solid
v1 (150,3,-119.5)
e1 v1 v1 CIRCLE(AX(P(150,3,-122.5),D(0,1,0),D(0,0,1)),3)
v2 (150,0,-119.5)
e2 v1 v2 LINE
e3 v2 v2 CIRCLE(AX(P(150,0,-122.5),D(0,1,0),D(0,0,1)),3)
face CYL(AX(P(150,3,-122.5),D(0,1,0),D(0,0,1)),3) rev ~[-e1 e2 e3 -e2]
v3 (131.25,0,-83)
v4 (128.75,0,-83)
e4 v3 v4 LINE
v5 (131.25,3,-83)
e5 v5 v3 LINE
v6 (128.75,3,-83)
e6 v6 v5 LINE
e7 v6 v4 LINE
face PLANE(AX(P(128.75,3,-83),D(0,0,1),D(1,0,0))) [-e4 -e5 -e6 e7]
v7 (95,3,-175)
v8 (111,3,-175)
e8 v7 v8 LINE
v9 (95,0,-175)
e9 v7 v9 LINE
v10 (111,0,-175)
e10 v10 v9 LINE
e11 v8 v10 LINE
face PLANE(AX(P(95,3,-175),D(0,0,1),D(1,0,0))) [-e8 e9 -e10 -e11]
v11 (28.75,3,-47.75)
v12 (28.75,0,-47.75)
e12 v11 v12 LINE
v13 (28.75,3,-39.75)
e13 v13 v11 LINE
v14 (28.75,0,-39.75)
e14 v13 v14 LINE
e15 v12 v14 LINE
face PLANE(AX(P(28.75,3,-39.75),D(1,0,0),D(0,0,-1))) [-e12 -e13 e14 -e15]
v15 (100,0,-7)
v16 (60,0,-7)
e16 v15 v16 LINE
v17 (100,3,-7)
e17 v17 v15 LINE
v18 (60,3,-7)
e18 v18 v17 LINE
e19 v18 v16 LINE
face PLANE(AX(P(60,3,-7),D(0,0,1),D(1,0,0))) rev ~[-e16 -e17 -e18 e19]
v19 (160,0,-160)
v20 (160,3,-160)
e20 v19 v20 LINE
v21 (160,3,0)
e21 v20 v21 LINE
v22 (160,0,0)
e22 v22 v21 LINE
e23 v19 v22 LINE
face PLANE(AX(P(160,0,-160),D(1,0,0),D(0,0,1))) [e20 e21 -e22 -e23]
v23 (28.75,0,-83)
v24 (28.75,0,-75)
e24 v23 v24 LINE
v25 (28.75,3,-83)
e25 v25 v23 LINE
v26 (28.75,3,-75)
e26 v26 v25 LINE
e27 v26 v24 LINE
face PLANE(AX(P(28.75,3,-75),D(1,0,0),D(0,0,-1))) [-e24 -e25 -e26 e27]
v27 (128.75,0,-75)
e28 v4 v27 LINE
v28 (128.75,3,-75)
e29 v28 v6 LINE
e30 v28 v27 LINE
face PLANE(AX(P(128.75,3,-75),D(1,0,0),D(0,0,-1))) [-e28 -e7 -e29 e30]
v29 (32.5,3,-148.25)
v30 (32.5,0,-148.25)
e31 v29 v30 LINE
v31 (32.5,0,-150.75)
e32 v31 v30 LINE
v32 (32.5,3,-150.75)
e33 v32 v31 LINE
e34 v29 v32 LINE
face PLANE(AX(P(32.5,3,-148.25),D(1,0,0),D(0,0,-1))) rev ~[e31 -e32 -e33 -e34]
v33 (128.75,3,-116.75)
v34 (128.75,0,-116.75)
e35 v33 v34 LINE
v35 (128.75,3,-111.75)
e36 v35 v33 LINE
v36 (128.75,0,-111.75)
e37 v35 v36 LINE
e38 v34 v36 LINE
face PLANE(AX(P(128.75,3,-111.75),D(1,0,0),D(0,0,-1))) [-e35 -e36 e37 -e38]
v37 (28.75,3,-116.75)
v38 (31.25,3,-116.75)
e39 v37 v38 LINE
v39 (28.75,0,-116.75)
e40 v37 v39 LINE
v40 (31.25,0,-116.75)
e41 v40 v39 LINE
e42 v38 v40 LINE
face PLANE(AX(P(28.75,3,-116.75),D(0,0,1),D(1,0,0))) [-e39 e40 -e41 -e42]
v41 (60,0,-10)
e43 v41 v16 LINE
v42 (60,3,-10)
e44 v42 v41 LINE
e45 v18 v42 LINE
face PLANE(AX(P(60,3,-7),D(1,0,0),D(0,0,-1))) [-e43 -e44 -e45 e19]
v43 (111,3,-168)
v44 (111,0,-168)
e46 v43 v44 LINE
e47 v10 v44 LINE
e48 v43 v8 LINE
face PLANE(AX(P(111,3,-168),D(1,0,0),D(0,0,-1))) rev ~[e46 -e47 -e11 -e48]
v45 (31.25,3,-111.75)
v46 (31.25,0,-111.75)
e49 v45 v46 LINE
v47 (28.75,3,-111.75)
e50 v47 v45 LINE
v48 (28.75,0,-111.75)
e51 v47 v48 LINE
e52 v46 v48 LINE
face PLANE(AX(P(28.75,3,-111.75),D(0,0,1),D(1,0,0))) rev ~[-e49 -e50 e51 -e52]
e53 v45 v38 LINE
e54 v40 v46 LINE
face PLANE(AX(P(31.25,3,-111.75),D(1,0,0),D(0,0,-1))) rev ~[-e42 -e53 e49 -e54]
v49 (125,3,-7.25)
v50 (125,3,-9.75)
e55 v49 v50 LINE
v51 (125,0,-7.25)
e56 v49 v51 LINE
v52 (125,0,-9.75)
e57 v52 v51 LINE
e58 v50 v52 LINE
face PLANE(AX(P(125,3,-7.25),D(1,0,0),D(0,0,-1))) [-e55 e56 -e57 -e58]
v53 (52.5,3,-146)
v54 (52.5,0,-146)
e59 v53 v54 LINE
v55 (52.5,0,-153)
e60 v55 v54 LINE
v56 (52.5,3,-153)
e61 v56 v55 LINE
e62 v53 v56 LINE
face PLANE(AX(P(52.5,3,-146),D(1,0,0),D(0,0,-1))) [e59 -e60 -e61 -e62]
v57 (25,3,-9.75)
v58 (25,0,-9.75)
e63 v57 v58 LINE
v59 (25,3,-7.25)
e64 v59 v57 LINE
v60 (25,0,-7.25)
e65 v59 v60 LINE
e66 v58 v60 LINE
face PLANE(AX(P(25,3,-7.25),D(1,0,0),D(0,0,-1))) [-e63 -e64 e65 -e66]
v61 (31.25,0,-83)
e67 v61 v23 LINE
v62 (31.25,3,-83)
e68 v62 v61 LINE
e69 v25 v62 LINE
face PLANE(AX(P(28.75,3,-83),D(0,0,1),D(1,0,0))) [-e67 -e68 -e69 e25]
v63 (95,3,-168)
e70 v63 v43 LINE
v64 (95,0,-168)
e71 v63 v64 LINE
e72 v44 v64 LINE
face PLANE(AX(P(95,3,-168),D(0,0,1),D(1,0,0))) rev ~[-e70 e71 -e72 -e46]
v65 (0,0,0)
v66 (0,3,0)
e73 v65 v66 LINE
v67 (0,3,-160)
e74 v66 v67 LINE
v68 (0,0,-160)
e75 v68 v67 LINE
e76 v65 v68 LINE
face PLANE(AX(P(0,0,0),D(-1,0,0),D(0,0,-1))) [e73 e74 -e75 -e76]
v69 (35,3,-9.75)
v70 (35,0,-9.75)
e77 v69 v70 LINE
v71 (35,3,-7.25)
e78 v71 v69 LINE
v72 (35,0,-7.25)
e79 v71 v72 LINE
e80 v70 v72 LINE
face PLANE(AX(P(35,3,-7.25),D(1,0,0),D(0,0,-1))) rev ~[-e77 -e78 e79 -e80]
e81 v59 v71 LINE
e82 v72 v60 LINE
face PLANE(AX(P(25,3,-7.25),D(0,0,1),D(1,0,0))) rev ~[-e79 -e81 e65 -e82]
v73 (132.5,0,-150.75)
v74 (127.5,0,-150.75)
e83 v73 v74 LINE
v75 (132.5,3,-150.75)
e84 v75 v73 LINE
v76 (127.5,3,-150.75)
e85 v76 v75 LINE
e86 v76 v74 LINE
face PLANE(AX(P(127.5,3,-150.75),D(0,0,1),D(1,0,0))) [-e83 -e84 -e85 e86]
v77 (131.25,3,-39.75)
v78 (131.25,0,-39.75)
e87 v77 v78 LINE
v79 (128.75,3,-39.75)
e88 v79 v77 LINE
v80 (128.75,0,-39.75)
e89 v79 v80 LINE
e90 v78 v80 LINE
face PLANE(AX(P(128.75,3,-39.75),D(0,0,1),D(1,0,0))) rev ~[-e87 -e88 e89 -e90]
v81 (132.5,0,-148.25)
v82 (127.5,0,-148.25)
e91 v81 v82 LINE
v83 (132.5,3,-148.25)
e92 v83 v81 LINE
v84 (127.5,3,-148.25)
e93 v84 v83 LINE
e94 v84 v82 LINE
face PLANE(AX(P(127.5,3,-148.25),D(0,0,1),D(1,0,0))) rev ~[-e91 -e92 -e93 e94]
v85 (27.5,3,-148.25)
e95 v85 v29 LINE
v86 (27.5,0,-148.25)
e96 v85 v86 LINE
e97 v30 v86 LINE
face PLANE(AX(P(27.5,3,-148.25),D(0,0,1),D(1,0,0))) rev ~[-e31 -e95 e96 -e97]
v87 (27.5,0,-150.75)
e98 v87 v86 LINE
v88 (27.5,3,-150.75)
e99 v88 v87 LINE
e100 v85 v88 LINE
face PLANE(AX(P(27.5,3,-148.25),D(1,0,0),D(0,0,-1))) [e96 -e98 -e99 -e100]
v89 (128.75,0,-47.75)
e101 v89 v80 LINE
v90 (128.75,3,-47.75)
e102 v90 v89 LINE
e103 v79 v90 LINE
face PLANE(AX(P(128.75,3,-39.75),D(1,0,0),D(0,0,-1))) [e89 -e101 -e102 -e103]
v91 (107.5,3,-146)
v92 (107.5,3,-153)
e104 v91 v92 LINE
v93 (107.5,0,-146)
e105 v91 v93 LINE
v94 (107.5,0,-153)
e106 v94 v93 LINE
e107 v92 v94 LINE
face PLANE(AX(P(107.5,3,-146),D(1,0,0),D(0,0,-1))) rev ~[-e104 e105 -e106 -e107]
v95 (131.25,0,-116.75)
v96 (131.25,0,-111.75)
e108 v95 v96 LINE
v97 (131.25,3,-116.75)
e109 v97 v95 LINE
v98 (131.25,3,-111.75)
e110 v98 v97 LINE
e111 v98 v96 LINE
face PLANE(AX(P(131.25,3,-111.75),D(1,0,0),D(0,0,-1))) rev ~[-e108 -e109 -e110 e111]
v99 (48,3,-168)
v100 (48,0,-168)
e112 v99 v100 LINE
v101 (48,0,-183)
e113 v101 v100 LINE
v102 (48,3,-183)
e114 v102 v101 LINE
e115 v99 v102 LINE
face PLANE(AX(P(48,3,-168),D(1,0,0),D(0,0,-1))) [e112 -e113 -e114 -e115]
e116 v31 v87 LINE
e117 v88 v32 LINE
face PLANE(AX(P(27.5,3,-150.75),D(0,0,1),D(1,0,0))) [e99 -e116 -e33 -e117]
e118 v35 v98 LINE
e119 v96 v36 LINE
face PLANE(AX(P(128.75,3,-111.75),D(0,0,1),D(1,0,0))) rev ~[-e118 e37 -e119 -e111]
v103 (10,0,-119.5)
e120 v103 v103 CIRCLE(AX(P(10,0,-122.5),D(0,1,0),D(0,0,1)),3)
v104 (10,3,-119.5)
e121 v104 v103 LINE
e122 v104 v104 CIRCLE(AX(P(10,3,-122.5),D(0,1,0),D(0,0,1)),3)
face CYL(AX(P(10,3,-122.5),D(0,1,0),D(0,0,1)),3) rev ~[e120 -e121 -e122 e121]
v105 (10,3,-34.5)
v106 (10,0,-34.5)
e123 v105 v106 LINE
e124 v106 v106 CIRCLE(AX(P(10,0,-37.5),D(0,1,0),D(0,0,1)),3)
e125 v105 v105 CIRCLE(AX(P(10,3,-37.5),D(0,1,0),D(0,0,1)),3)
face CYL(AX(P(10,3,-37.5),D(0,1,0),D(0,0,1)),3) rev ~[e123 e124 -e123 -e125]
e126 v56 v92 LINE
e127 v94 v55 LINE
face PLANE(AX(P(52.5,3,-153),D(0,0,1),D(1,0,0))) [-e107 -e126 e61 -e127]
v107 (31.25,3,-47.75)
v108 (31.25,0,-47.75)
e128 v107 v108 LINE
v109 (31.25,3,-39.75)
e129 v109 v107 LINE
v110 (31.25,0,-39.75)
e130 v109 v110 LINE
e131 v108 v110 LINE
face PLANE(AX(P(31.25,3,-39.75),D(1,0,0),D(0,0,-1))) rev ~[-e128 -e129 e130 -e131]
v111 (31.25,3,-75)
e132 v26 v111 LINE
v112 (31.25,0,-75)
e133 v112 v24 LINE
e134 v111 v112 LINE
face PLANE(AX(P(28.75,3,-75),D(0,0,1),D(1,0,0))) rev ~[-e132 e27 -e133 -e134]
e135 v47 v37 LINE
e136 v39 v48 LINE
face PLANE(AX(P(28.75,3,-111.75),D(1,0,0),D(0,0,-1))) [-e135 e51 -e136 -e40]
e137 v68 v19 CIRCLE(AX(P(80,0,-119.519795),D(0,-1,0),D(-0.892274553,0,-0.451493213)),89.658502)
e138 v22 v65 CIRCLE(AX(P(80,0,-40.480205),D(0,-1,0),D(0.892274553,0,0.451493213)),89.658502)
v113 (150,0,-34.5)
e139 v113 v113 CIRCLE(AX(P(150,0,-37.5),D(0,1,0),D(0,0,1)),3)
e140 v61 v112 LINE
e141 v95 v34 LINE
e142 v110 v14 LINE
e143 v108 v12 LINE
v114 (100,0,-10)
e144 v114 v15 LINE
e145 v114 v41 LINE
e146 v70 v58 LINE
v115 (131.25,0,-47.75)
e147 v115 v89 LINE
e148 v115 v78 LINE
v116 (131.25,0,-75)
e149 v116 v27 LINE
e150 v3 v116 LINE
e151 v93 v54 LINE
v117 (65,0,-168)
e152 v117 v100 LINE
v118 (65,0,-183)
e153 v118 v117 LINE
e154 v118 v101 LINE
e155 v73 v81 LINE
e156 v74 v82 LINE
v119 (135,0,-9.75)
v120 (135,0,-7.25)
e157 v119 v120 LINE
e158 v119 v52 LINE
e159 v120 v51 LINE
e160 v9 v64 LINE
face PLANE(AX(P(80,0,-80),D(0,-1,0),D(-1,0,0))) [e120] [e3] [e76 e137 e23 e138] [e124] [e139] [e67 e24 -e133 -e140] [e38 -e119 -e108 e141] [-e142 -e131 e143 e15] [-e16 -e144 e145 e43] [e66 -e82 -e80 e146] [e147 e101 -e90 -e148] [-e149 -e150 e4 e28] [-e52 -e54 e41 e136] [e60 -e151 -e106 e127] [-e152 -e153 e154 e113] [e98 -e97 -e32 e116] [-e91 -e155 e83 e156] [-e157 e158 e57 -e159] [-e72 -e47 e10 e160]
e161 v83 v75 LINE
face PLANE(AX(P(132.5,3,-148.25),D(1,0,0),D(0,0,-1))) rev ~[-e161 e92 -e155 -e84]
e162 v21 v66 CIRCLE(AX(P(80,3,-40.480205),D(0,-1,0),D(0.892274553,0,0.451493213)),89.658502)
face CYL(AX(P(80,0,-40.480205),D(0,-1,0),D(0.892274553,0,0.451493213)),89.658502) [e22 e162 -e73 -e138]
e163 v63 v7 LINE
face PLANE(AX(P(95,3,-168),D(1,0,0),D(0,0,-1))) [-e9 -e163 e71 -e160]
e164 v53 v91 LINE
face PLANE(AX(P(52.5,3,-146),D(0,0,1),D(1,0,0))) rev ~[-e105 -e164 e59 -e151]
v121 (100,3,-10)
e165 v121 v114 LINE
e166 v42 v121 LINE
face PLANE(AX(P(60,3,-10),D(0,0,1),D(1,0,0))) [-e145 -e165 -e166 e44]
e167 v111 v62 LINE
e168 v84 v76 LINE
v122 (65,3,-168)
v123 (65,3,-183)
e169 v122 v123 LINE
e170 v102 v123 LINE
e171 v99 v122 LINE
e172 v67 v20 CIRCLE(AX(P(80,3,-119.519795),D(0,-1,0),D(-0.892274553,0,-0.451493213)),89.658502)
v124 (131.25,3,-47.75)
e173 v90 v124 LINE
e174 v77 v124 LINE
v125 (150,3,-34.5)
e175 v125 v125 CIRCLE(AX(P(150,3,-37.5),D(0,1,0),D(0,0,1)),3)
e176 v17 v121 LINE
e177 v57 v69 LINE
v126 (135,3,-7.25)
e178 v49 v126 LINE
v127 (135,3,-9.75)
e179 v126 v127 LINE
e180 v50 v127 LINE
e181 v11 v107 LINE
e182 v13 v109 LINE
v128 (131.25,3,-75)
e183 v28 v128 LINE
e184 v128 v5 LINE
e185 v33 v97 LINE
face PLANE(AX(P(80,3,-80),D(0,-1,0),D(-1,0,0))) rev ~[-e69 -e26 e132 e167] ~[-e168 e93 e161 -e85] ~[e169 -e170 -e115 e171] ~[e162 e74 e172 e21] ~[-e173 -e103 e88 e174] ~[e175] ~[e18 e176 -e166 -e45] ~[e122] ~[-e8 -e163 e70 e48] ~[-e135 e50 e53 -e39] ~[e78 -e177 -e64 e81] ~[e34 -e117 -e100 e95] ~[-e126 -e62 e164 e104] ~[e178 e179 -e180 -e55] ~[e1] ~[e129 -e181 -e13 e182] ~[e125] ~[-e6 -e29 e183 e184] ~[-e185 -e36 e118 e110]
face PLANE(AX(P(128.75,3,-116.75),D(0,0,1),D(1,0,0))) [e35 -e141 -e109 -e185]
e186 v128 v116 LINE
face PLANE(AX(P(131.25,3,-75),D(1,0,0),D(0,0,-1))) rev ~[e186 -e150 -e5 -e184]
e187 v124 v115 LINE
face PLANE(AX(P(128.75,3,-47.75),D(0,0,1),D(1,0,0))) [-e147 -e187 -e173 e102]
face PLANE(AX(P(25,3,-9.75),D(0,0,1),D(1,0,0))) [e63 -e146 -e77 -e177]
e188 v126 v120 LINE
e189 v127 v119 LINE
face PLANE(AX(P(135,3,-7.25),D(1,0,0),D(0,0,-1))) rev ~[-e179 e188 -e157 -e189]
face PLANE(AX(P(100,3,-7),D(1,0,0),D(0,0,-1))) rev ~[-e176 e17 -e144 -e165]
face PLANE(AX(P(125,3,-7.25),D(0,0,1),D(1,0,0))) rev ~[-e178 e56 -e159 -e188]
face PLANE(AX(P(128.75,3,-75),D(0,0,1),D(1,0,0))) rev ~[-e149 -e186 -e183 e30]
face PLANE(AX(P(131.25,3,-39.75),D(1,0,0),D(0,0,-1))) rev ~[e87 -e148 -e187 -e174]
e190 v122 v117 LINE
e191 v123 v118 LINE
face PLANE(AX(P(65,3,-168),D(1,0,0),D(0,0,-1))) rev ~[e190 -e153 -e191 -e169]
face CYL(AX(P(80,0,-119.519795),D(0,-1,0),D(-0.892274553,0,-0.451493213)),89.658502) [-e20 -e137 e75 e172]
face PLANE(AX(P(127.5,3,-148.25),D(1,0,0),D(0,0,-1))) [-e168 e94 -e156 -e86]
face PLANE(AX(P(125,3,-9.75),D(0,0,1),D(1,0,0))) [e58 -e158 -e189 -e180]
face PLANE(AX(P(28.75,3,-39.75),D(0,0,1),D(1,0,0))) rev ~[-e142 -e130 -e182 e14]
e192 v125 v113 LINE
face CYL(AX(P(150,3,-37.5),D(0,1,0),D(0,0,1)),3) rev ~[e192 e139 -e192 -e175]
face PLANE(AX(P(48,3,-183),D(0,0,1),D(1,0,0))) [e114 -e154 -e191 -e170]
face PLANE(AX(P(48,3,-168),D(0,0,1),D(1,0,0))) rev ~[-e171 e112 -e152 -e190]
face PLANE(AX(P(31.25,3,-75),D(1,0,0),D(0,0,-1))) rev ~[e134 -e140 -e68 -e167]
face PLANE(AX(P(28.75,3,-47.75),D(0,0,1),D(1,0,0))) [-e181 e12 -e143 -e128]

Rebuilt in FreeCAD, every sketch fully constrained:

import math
import FreeCAD as App
import Part
import Sketcher

V = App.Vector


def add_polygon(sketch, points):
    """Adds a closed chain of lines whose ends are joined by coincident constraints."""
    first, n = sketch.GeometryCount, len(points)
    for a, b in zip(points, points[1:] + points[:1]):
        sketch.addGeometry(Part.LineSegment(App.Vector(*a, 0), App.Vector(*b, 0)), False)
    for i in range(n):
        sketch.addConstraint(Sketcher.Constraint("Coincident", first + i, 2, first + (i + 1) % n, 1))

doc = App.newDocument("Part")
body = doc.addObject("PartDesign::Body", "Body")

# Sketch on XZ plane
sketch1 = doc.addObject("Sketcher::SketchObject", "Sketch")
body.addObject(sketch1)
sketch1.AttachmentSupport = (doc.XZ_Plane, [""])
sketch1.MapMode = "FlatFace"
sketch1.addGeometry([
    Part.LineSegment(V(0, -160, 0), V(0, 0, 0)),
    Part.ArcOfCircle(Part.Circle(V(80, -40, 0), V(0, 0, 1), 90), math.radians(27), math.radians(153)),
    Part.LineSegment(V(160, 0, 0), V(160, -160, 0)),
    Part.ArcOfCircle(Part.Circle(V(80, -120, 0), V(0, 0, 1), 90), math.radians(-153), math.radians(-27)),
], False)
sketch1.addConstraint([
    Sketcher.Constraint("Coincident", 0, 2, 1, 2),
    Sketcher.Constraint("Coincident", 1, 1, 2, 1),
    Sketcher.Constraint("Coincident", 2, 2, 3, 2),
    Sketcher.Constraint("Coincident", 3, 1, 0, 1),
    Sketcher.Constraint("Vertical", 0),
    Sketcher.Constraint("Vertical", 2),
    Sketcher.Constraint("Coincident", 0, 2, -1, 1),
    Sketcher.Constraint("Equal", 1, 3),
    Sketcher.Constraint("PointOnObject", 1, 1, -1),
    Sketcher.Constraint("Horizontal", 2, 2, 3, 1),
    Sketcher.Constraint("DistanceY", 0, 1, 0, 2, 160.0),
    Sketcher.Constraint("DistanceX", -1, 1, 1, 3, 80.0),
    Sketcher.Constraint("Radius", 1, 89.658502),
])
pad1 = doc.addObject("PartDesign::Pad", "Pad")
body.addObject(pad1)
pad1.Profile = sketch1
pad1.Length = 3
pad1.Reversed = True

# Sketch on XZ plane
sketch2 = doc.addObject("Sketcher::SketchObject", "Sketch001")
body.addObject(sketch2)
sketch2.AttachmentSupport = (doc.XZ_Plane, [""])
sketch2.MapMode = "FlatFace"
sketch2.AttachmentOffset = App.Placement(V(0, 0, -3), App.Rotation())
sketch2.addGeometry([
    Part.Circle(V(10, -37.5, 0), V(0, 0, 1), 3),
    Part.Circle(V(150, -37.5, 0), V(0, 0, 1), 3),
    Part.Circle(V(150, -122.5, 0), V(0, 0, 1), 3),
    Part.Circle(V(10, -122.5, 0), V(0, 0, 1), 3),
], False)
sketch2.addConstraint([
    Sketcher.Constraint("Equal", 0, 1),
    Sketcher.Constraint("Equal", 1, 2),
    Sketcher.Constraint("Equal", 2, 3),
    Sketcher.Constraint("Horizontal", 0, 3, 1, 3),
    Sketcher.Constraint("Horizontal", 2, 3, 3, 3),
    Sketcher.Constraint("Vertical", 1, 3, 2, 3),
    Sketcher.Constraint("Vertical", 0, 3, 3, 3),
    Sketcher.Constraint("Diameter", 0, 6.0),
    Sketcher.Constraint("DistanceX", -1, 1, 0, 3, 10.0),
    Sketcher.Constraint("DistanceX", -1, 1, 1, 3, 150.0),
    Sketcher.Constraint("DistanceY", 2, 3, 1, 3, 85.0),
    Sketcher.Constraint("DistanceY", 0, 3, -1, 1, 37.5),
])
pocket1 = doc.addObject("PartDesign::Pocket", "Pocket")
body.addObject(pocket1)
pocket1.Profile = sketch2
pocket1.Length = 44
pocket1.Reversed = True

# Sketch on XZ plane
sketch3 = doc.addObject("Sketcher::SketchObject", "Sketch002")
body.addObject(sketch3)
sketch3.AttachmentSupport = (doc.XZ_Plane, [""])
sketch3.MapMode = "FlatFace"
sketch3.AttachmentOffset = App.Placement(V(0, 0, -3), App.Rotation())
add_polygon(sketch3, [(52.5, -153), (52.5, -146), (107.5, -146), (107.5, -153)])  # lines 0-3
add_polygon(sketch3, [(28.8, -47.8), (28.8, -39.8), (31.2, -39.8), (31.2, -47.8)])  # lines 4-7
add_polygon(sketch3, [(60, -10), (60, -7), (100, -7), (100, -10)])  # lines 8-11
add_polygon(sketch3, [(27.5, -150.8), (27.5, -148.2), (32.5, -148.2), (32.5, -150.8)])  # lines 12-15
add_polygon(sketch3, [(127.5, -150.8), (127.5, -148.2), (132.5, -148.2), (132.5, -150.8)])  # lines 16-19
add_polygon(sketch3, [(128.8, -116.8), (128.8, -111.8), (131.2, -111.8), (131.2, -116.8)])  # lines 20-23
add_polygon(sketch3, [(28.8, -116.8), (28.8, -111.8), (31.2, -111.8), (31.2, -116.8)])  # lines 24-27
add_polygon(sketch3, [(28.8, -83), (28.8, -75), (31.2, -75), (31.2, -83)])  # lines 28-31
add_polygon(sketch3, [(128.8, -83), (128.8, -75), (131.2, -75), (131.2, -83)])  # lines 32-35
add_polygon(sketch3, [(25, -9.8), (25, -7.2), (35, -7.2), (35, -9.8)])  # lines 36-39
add_polygon(sketch3, [(125, -9.8), (125, -7.2), (135, -7.2), (135, -9.8)])  # lines 40-43
add_polygon(sketch3, [(128.8, -47.8), (128.8, -39.8), (131.2, -39.8), (131.2, -47.8)])  # lines 44-47
sketch3.addConstraint([
    Sketcher.Constraint("Vertical", 0),
    Sketcher.Constraint("Horizontal", 1),
    Sketcher.Constraint("Vertical", 2),
    Sketcher.Constraint("Horizontal", 3),
    Sketcher.Constraint("Vertical", 4),
    Sketcher.Constraint("Horizontal", 5),
    Sketcher.Constraint("Vertical", 6),
    Sketcher.Constraint("Horizontal", 7),
    Sketcher.Constraint("Vertical", 8),
    Sketcher.Constraint("Horizontal", 9),
    Sketcher.Constraint("Vertical", 10),
    Sketcher.Constraint("Horizontal", 11),
    Sketcher.Constraint("Vertical", 12),
    Sketcher.Constraint("Horizontal", 13),
    Sketcher.Constraint("Vertical", 14),
    Sketcher.Constraint("Horizontal", 15),
    Sketcher.Constraint("Vertical", 16),
    Sketcher.Constraint("Horizontal", 17),
    Sketcher.Constraint("Vertical", 18),
    Sketcher.Constraint("Horizontal", 19),
    Sketcher.Constraint("Vertical", 20),
    Sketcher.Constraint("Horizontal", 21),
    Sketcher.Constraint("Vertical", 22),
    Sketcher.Constraint("Horizontal", 23),
    Sketcher.Constraint("Vertical", 24),
    Sketcher.Constraint("Horizontal", 25),
    Sketcher.Constraint("Vertical", 26),
    Sketcher.Constraint("Horizontal", 27),
    Sketcher.Constraint("Vertical", 28),
    Sketcher.Constraint("Horizontal", 29),
    Sketcher.Constraint("Vertical", 30),
    Sketcher.Constraint("Horizontal", 31),
    Sketcher.Constraint("Vertical", 32),
    Sketcher.Constraint("Horizontal", 33),
    Sketcher.Constraint("Vertical", 34),
    Sketcher.Constraint("Horizontal", 35),
    Sketcher.Constraint("Vertical", 36),
    Sketcher.Constraint("Horizontal", 37),
    Sketcher.Constraint("Vertical", 38),
    Sketcher.Constraint("Horizontal", 39),
    Sketcher.Constraint("Vertical", 40),
    Sketcher.Constraint("Horizontal", 41),
    Sketcher.Constraint("Vertical", 42),
    Sketcher.Constraint("Horizontal", 43),
    Sketcher.Constraint("Vertical", 44),
    Sketcher.Constraint("Horizontal", 45),
    Sketcher.Constraint("Vertical", 46),
    Sketcher.Constraint("Horizontal", 47),
    Sketcher.Constraint("Horizontal", 13, 2, 16, 2),
    Sketcher.Constraint("Horizontal", 15, 2, 18, 2),
    Sketcher.Constraint("Horizontal", 21, 2, 24, 2),
    Sketcher.Constraint("Horizontal", 23, 2, 26, 2),
    Sketcher.Constraint("Horizontal", 29, 2, 32, 2),
    Sketcher.Constraint("Horizontal", 31, 2, 34, 2),
    Sketcher.Constraint("Horizontal", 37, 2, 40, 2),
    Sketcher.Constraint("Horizontal", 39, 2, 42, 2),
    Sketcher.Constraint("Horizontal", 5, 2, 44, 2),
    Sketcher.Constraint("Horizontal", 7, 2, 46, 2),
    Sketcher.Constraint("Vertical", 7, 2, 24, 2),
    Sketcher.Constraint("Vertical", 6, 2, 25, 2),
    Sketcher.Constraint("Vertical", 27, 2, 28, 2),
    Sketcher.Constraint("Vertical", 26, 2, 29, 2),
    Sketcher.Constraint("Vertical", 23, 2, 32, 2),
    Sketcher.Constraint("Vertical", 22, 2, 33, 2),
    Sketcher.Constraint("Vertical", 35, 2, 44, 2),
    Sketcher.Constraint("Vertical", 34, 2, 45, 2),
    Sketcher.Constraint("Equal", 15, 17),
    Sketcher.Constraint("Equal", 7, 21),
    Sketcher.Constraint("Equal", 39, 41),
    Sketcher.Constraint("Equal", 47, 12),
    Sketcher.Constraint("Equal", 19, 20),
    Sketcher.Constraint("Equal", 6, 28),
    Sketcher.Constraint("Equal", 18, 36),
    Sketcher.Constraint("DistanceX", 1, 1, 1, 2, 55.0),
    Sketcher.Constraint("DistanceX", 9, 1, 9, 2, 40.0),
    Sketcher.Constraint("DistanceX", 13, 1, 13, 2, 5.0),
    Sketcher.Constraint("DistanceX", 37, 1, 37, 2, 10.0),
    Sketcher.Constraint("DistanceY", 0, 1, 0, 2, 7.0),
    Sketcher.Constraint("DistanceY", 4, 1, 4, 2, 8.0),
    Sketcher.Constraint("DistanceY", 8, 1, 8, 2, 3.0),
    Sketcher.Constraint("DistanceX", 5, 1, 5, 2, 2.5),
    Sketcher.Constraint("DistanceY", 0, 2, -1, 1, 146.0),
    Sketcher.Constraint("DistanceX", -1, 1, 8, 2, 60.0),
    Sketcher.Constraint("DistanceY", 8, 2, -1, 1, 7.0),
    Sketcher.Constraint("DistanceY", 28, 2, -1, 1, 75.0),
    Sketcher.Constraint("DistanceX", -1, 1, 36, 2, 25.0),
    Sketcher.Constraint("DistanceX", -1, 1, 40, 2, 125.0),
    Sketcher.Constraint("DistanceX", 12, 2, 0, 2, 25.0),
    Sketcher.Constraint("DistanceX", 1, 2, 16, 2, 20.0),
    Sketcher.Constraint("DistanceY", 19, 2, 20, 2, 39.0),
    Sketcher.Constraint("DistanceY", 5, 2, 38, 2, 30.0),
    Sketcher.Constraint("DistanceX", -1, 1, 0, 2, 52.5),
    Sketcher.Constraint("DistanceY", 12, 2, 7, 2, 100.5),
    Sketcher.Constraint("DistanceX", -1, 1, 4, 2, 28.75),
    Sketcher.Constraint("DistanceY", 4, 2, -1, 1, 39.75),
    Sketcher.Constraint("DistanceX", -1, 1, 20, 2, 128.75),
])
pocket2 = doc.addObject("PartDesign::Pocket", "Pocket001")
body.addObject(pocket2)
pocket2.Profile = sketch3
pocket2.Length = 31
pocket2.Reversed = True

# Sketch on XZ plane
sketch4 = doc.addObject("Sketcher::SketchObject", "Sketch003")
body.addObject(sketch4)
sketch4.AttachmentSupport = (doc.XZ_Plane, [""])
sketch4.MapMode = "FlatFace"
sketch4.AttachmentOffset = App.Placement(V(0, 0, -3), App.Rotation())
add_polygon(sketch4, [(48, -183), (48, -168), (65, -168), (65, -183)])  # lines 0-3
add_polygon(sketch4, [(95, -175), (95, -168), (111, -168), (111, -175)])  # lines 4-7
sketch4.addConstraint([
    Sketcher.Constraint("Vertical", 0),
    Sketcher.Constraint("Horizontal", 1),
    Sketcher.Constraint("Vertical", 2),
    Sketcher.Constraint("Horizontal", 3),
    Sketcher.Constraint("Vertical", 4),
    Sketcher.Constraint("Horizontal", 5),
    Sketcher.Constraint("Vertical", 6),
    Sketcher.Constraint("Horizontal", 7),
    Sketcher.Constraint("Horizontal", 1, 2, 4, 2),
    Sketcher.Constraint("DistanceX", 1, 1, 1, 2, 17.0),
    Sketcher.Constraint("DistanceX", 5, 1, 5, 2, 16.0),
    Sketcher.Constraint("DistanceY", 0, 1, 0, 2, 15.0),
    Sketcher.Constraint("DistanceY", 4, 1, 4, 2, 7.0),
    Sketcher.Constraint("DistanceX", -1, 1, 0, 2, 48.0),
    Sketcher.Constraint("DistanceY", 0, 2, -1, 1, 168.0),
    Sketcher.Constraint("DistanceX", -1, 1, 4, 2, 95.0),
])
pocket3 = doc.addObject("PartDesign::Pocket", "Pocket002")
body.addObject(pocket3)
pocket3.Profile = sketch4
pocket3.Length = 29
pocket3.Reversed = True

doc.recompute()
